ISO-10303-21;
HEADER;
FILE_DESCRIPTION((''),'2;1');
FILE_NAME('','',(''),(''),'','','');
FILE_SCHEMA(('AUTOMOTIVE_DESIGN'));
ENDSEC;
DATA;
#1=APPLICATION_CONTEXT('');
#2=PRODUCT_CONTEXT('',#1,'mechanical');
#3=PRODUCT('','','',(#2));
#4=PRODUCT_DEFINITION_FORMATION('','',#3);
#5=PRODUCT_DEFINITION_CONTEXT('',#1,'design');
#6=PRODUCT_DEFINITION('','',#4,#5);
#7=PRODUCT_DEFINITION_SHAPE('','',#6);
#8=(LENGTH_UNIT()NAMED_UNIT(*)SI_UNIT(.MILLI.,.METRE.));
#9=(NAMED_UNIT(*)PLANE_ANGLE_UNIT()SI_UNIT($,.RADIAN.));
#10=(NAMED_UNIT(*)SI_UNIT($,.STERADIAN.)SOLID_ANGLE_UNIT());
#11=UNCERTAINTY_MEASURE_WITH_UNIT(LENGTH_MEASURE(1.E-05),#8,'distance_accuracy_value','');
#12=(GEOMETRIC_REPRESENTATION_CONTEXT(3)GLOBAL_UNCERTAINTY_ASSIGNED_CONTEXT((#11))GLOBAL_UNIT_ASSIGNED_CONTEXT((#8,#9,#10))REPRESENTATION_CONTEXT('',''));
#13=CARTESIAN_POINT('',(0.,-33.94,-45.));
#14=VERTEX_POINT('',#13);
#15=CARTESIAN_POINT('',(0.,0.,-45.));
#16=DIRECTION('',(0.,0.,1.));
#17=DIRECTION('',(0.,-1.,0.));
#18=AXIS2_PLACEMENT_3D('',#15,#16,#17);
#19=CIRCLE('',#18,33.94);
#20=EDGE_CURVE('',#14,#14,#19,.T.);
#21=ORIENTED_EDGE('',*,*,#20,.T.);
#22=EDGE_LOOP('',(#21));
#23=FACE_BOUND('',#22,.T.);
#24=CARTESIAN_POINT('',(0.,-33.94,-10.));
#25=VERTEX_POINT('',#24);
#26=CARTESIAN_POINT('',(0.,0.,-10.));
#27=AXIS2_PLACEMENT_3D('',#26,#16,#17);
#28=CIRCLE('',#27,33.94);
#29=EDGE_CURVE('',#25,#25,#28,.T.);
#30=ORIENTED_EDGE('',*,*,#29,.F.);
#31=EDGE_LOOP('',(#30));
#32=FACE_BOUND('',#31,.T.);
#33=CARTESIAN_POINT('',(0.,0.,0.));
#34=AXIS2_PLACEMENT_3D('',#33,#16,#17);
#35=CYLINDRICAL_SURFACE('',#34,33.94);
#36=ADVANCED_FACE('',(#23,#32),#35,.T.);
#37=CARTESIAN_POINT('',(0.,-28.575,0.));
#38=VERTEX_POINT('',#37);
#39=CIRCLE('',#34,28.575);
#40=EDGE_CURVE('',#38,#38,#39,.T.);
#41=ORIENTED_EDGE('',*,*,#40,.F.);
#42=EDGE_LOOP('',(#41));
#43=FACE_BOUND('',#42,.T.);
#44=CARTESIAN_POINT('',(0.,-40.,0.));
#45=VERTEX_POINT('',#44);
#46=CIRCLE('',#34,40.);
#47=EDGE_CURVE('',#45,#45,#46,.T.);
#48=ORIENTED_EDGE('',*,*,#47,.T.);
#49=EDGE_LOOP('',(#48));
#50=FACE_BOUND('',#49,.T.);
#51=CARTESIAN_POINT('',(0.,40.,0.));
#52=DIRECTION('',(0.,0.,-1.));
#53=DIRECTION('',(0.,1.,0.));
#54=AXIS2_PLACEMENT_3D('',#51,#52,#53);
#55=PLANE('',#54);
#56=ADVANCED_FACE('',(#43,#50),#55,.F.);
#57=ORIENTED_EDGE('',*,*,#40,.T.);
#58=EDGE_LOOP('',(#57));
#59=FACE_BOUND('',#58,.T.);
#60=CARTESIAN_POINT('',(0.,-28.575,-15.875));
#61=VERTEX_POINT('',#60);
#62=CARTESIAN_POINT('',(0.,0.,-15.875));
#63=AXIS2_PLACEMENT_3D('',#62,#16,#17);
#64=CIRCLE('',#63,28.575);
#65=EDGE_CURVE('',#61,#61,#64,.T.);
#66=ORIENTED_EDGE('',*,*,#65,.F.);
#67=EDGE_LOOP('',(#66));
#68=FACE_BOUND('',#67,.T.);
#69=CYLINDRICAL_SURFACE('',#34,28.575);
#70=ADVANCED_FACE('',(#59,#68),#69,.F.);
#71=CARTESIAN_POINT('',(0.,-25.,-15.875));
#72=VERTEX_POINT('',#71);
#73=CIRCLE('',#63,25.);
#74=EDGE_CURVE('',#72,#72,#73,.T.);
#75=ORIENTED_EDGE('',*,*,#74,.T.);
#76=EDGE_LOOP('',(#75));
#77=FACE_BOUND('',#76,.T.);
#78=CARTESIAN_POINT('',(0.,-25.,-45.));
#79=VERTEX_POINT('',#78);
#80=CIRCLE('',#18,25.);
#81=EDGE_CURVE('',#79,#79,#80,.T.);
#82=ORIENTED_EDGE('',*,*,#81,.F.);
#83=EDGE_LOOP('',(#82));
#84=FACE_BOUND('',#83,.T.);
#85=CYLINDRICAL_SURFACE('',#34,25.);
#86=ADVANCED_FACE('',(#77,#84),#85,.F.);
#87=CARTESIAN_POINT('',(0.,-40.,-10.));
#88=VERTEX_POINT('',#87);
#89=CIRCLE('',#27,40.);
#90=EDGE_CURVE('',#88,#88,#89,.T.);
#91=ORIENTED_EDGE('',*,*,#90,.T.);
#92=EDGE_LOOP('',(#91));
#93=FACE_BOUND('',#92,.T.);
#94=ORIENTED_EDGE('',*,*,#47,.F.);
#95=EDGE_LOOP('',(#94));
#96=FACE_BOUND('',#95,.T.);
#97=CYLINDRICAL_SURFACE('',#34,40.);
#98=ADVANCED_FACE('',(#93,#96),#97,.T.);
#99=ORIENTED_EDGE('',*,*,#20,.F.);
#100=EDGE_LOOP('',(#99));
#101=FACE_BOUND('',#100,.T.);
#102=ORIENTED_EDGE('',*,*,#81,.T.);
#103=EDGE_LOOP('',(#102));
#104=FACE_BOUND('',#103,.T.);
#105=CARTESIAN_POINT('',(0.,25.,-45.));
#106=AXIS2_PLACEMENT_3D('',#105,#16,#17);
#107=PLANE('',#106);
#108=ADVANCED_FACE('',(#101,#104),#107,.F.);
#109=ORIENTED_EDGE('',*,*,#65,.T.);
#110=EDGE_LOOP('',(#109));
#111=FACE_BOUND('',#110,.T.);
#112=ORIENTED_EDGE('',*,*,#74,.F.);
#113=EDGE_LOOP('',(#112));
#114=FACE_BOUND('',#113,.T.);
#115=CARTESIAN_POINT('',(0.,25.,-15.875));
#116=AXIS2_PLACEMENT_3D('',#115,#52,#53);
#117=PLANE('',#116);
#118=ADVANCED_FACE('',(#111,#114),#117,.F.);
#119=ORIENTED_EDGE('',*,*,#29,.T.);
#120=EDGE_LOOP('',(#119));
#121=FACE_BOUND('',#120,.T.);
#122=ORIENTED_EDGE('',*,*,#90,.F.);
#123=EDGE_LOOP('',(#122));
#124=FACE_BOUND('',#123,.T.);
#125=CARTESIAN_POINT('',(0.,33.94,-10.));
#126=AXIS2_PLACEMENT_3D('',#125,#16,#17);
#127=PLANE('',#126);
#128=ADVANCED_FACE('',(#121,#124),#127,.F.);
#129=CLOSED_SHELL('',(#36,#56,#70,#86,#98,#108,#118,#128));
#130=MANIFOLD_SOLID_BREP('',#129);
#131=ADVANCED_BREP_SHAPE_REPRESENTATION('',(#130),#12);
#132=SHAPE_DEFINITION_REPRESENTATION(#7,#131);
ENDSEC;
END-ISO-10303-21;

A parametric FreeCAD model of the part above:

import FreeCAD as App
import Part
import Sketcher
from FreeCAD import Vector
Q = App.Units.Quantity

doc = App.newDocument("Part")
body = doc.addObject("PartDesign::Body", "Body")

# Sketch on YZ plane
sketch1 = body.newObject("Sketcher::SketchObject", "Sketch")
sketch1.AttachmentSupport = (doc.getObject("YZ_Plane"), [""])
sketch1.MapMode = "FlatFace"
sketch1.addGeometry([
    Part.LineSegment(Vector(25, -45, 0), Vector(33.94, -45, 0)),  # 0
    Part.LineSegment(Vector(33.94, -45, 0), Vector(33.94, -10, 0)),  # 1
    Part.LineSegment(Vector(33.94, -10, 0), Vector(40, -10, 0)),  # 2
    Part.LineSegment(Vector(40, -10, 0), Vector(40, 0, 0)),  # 3
    Part.LineSegment(Vector(40, 0, 0), Vector(28.575, 0, 0)),  # 4
    Part.LineSegment(Vector(28.575, 0, 0), Vector(28.575, -15.875, 0)),  # 5
    Part.LineSegment(Vector(28.575, -15.875, 0), Vector(25, -15.875, 0)),  # 6
    Part.LineSegment(Vector(25, -15.875, 0), Vector(25, -45, 0)),  # 7
], False)
sketch1.addConstraint([
    Sketcher.Constraint("Coincident", 0, 2, 1, 1),
    Sketcher.Constraint("Coincident", 1, 2, 2, 1),
    Sketcher.Constraint("Coincident", 2, 2, 3, 1),
    Sketcher.Constraint("Coincident", 3, 2, 4, 1),
    Sketcher.Constraint("Coincident", 4, 2, 5, 1),
    Sketcher.Constraint("Coincident", 5, 2, 6, 1),
    Sketcher.Constraint("Coincident", 6, 2, 7, 1),
    Sketcher.Constraint("Coincident", 7, 2, 0, 1),
    Sketcher.Constraint("Horizontal", 0),
    Sketcher.Constraint("Vertical", 1),
    Sketcher.Constraint("Horizontal", 2),
    Sketcher.Constraint("Vertical", 3),
    Sketcher.Constraint("Horizontal", 4),
    Sketcher.Constraint("Vertical", 5),
    Sketcher.Constraint("Horizontal", 6),
    Sketcher.Constraint("Vertical", 7),
    Sketcher.Constraint("PointOnObject", 3, 2, -1),
    Sketcher.Constraint("DistanceY", 1, 1, 1, 2, Q("35 mm")),
    Sketcher.Constraint("DistanceY", 3, 1, 3, 2, Q("10 mm")),
    Sketcher.Constraint("DistanceX", -1, 1, 2, 2, Q("40 mm")),
    Sketcher.Constraint("DistanceX", -1, 1, 6, 2, Q("25 mm")),
    Sketcher.Constraint("DistanceX", 0, 1, 0, 2, Q("8.94 mm")),
    Sketcher.Constraint("DistanceX", 4, 2, 4, 1, Q("11.425 mm")),
    Sketcher.Constraint("DistanceY", 5, 2, 5, 1, Q("15.875 mm")),
])
revolution = body.newObject("PartDesign::Revolution", "Revolution")
revolution.Profile = sketch1
revolution.ReferenceAxis = (sketch1, ["V_Axis"])
revolution.Angle = 360

doc.recompute()
